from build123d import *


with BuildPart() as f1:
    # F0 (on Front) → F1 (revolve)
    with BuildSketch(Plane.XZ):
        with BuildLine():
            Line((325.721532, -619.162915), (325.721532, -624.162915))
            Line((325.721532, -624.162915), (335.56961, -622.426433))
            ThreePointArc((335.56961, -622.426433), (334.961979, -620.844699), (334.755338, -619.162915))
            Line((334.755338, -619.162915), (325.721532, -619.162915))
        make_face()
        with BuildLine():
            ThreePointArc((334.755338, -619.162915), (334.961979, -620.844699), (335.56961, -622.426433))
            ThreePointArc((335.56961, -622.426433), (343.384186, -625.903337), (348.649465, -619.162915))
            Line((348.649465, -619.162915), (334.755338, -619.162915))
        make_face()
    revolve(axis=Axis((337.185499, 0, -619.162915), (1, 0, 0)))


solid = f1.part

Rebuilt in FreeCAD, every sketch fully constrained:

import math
import FreeCAD as App
import Part
import Sketcher

V = App.Vector
Q = App.Units.Quantity

doc = App.newDocument("Part")
body = doc.addObject("PartDesign::Body", "Body")

sketch1 = body.newObject("Sketcher::SketchObject", "Sketch")
sketch1.AttachmentSupport = (doc.getObject("XZ_Plane"), [""])
sketch1.MapMode = "FlatFace"
sketch1.addGeometry(Part.LineSegment(V(325.721532, -619.162915, 0), V(325.721532, -624.162915, 0)), False)
sketch1.addGeometry(Part.LineSegment(V(325.721532, -624.162915, 0), V(335.56961, -622.426433, 0)), False)
sketch1.addGeometry(Part.ArcOfCircle(Part.Circle(V(341.702402, -619.162915, 0), V(0, 0, 1), 6.947063), math.radians(-151.980669), math.radians(0)), False)
sketch1.addGeometry(Part.LineSegment(V(348.649465, -619.162915, 0), V(325.721532, -619.162915, 0)), False)
sketch1.addGeometry(Part.LineSegment(V(325.721532, -619.162915, 0), V(348.649465, -619.162915, 0)), True)
sketch1.addConstraint(Sketcher.Constraint("Coincident", 0, 2, 1, 1))
sketch1.addConstraint(Sketcher.Constraint("Coincident", 1, 2, 2, 1))
sketch1.addConstraint(Sketcher.Constraint("Coincident", 2, 2, 3, 1))
sketch1.addConstraint(Sketcher.Constraint("Coincident", 3, 2, 0, 1))
sketch1.addConstraint(Sketcher.Constraint("Vertical", 0))
sketch1.addConstraint(Sketcher.Constraint("Horizontal", 3))
sketch1.addConstraint(Sketcher.Constraint("Horizontal", 4))
sketch1.addConstraint(Sketcher.Constraint("Coincident", 4, 1, 3, 2))
sketch1.addConstraint(Sketcher.Constraint("Equal", 3, 4))
sketch1.addConstraint(Sketcher.Constraint("DistanceY", 0, 2, 0, 1, 5.0))
sketch1.addConstraint(Sketcher.Constraint("Angle", 1, Q("10.000001 deg")))
sketch1.addConstraint(Sketcher.Constraint("Distance", 1, 10.000001))
sketch1.addConstraint(Sketcher.Constraint("DistanceY", 0, 2, 2, 3, 5.0))
sketch1.addConstraint(Sketcher.Constraint("Radius", 2, 6.947063))
sketch1.addConstraint(Sketcher.Constraint("DistanceX", -1, 1, 2, 3, 341.702402))
sketch1.addConstraint(Sketcher.Constraint("DistanceY", 2, 3, -1, 1, 619.162915))
revolution = body.newObject("PartDesign::Revolution", "Revolution")
revolution.Profile = sketch1
revolution.ReferenceAxis = (sketch1, ["Axis0"])
revolution.Angle = 360

doc.recompute()
